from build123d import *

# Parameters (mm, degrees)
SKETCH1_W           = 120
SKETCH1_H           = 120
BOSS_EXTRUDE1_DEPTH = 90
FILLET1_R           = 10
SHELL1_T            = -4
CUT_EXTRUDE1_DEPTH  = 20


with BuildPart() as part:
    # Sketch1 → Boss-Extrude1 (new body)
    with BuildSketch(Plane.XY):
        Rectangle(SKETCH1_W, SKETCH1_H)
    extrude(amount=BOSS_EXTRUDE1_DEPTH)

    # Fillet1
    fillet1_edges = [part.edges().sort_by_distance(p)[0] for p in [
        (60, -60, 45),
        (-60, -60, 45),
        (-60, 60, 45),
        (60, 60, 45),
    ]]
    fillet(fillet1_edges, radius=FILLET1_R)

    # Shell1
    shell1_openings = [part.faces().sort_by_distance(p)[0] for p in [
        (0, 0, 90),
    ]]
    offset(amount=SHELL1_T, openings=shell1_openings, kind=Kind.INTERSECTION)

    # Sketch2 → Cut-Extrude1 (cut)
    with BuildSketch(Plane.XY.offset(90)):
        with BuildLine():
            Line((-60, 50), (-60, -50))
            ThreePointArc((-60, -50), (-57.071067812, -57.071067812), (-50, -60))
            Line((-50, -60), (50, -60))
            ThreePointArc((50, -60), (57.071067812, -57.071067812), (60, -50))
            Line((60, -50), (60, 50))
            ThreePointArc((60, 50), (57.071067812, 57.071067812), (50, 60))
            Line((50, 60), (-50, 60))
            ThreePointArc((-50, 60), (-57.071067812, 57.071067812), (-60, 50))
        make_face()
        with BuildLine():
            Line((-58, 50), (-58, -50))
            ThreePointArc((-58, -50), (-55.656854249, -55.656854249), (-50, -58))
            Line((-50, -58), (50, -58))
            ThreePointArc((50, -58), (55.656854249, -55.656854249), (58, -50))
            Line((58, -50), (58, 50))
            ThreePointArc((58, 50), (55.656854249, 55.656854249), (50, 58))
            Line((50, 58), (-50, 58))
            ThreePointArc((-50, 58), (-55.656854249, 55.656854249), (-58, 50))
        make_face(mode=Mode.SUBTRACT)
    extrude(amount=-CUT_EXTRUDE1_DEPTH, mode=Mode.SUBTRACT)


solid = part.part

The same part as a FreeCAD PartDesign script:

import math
import FreeCAD as App
import Part
import Sketcher
from FreeCAD import Vector
Q = App.Units.Quantity


def edges_at(feature, points):
    """Names of the edges that pass closest to the given points."""
    edges = feature.Shape.Edges
    near = lambda p: min(range(len(edges)), key=lambda i: edges[i].distToShape(Part.Vertex(*p))[0])
    return sorted({f"Edge{near(p) + 1}" for p in points})


def faces_at(feature, points):
    """Names of the faces that lie closest to the given points."""
    faces = feature.Shape.Faces
    near = lambda p: min(range(len(faces)), key=lambda i: faces[i].distToShape(Part.Vertex(*p))[0])
    return sorted({f"Face{near(p) + 1}" for p in points})


def add_polygon(sketch, points):
    """Adds a closed chain of lines whose ends are joined by coincident constraints."""
    first, n = sketch.GeometryCount, len(points)
    for a, b in zip(points, points[1:] + points[:1]):
        sketch.addGeometry(Part.LineSegment(App.Vector(*a, 0), App.Vector(*b, 0)), False)
    for i in range(n):
        sketch.addConstraint(Sketcher.Constraint("Coincident", first + i, 2, first + (i + 1) % n, 1))

doc = App.newDocument("Part")
body = doc.addObject("PartDesign::Body", "Body")

# Sketch on XY plane
sketch1 = doc.addObject("Sketcher::SketchObject", "Sketch")
body.addObject(sketch1)
sketch1.AttachmentSupport = (doc.XY_Plane, [""])
sketch1.MapMode = "FlatFace"
add_polygon(sketch1, [(-60, 60), (-60, -60), (60, -60), (60, 60)])  # lines 0-3
sketch1.addConstraint([
    Sketcher.Constraint("Vertical", 0),
    Sketcher.Constraint("Horizontal", 1),
    Sketcher.Constraint("Vertical", 2),
    Sketcher.Constraint("Horizontal", 3),
    Sketcher.Constraint("Symmetric", 0, 2, 2, 2, -1, 1),
    Sketcher.Constraint("Equal", 3, 0),
    Sketcher.Constraint("DistanceX", 1, 1, 1, 2, Q("120 mm")),
])
pad1 = doc.addObject("PartDesign::Pad", "Pad")
body.addObject(pad1)
pad1.Profile = sketch1
pad1.Length = 90
doc.recompute()

fillet = doc.addObject("PartDesign::Fillet", "Fillet")
body.addObject(fillet)
fillet.Base = (pad1, edges_at(pad1, [
    (60, -60, 45),
    (-60, -60, 45),
    (-60, 60, 45),
    (60, 60, 45),
]))
fillet.Radius = 10
doc.recompute()

thickness = doc.addObject("PartDesign::Thickness", "Thickness")
body.addObject(thickness)
thickness.Base = (fillet, faces_at(fillet, [(0, 0, 90)]))
thickness.Value = 4
thickness.Reversed = True
thickness.Join = "Intersection"

# Sketch on XY plane
sketch2 = doc.addObject("Sketcher::SketchObject", "Sketch001")
body.addObject(sketch2)
sketch2.AttachmentSupport = (doc.XY_Plane, [""])
sketch2.MapMode = "FlatFace"
sketch2.AttachmentOffset = App.Placement(Vector(0, 0, 90), App.Rotation())
sketch2.addGeometry([
    Part.LineSegment(Vector(-60, 50, 0), Vector(-60, -50, 0)),  # 0
    Part.ArcOfCircle(Part.Circle(Vector(-50, -50, 0), Vector(0, 0, 1), 10), math.radians(180), math.radians(270)),  # 1
    Part.LineSegment(Vector(-50, -60, 0), Vector(50, -60, 0)),  # 2
    Part.ArcOfCircle(Part.Circle(Vector(50, -50, 0), Vector(0, 0, 1), 10), math.radians(-90), math.radians(0)),  # 3
    Part.LineSegment(Vector(60, -50, 0), Vector(60, 50, 0)),  # 4
    Part.ArcOfCircle(Part.Circle(Vector(50, 50, 0), Vector(0, 0, 1), 10), math.radians(0), math.radians(90)),  # 5
    Part.LineSegment(Vector(50, 60, 0), Vector(-50, 60, 0)),  # 6
    Part.ArcOfCircle(Part.Circle(Vector(-50, 50, 0), Vector(0, 0, 1), 10), math.radians(90), math.radians(180)),  # 7
    Part.LineSegment(Vector(-58, -50, 0), Vector(-58, 50, 0)),  # 8
    Part.ArcOfCircle(Part.Circle(Vector(-50, 50, 0), Vector(0, 0, 1), 8), math.radians(90), math.radians(180)),  # 9
    Part.LineSegment(Vector(-50, 58, 0), Vector(50, 58, 0)),  # 10
    Part.ArcOfCircle(Part.Circle(Vector(50, 50, 0), Vector(0, 0, 1), 8), math.radians(0), math.radians(90)),  # 11
    Part.LineSegment(Vector(58, 50, 0), Vector(58, -50, 0)),  # 12
    Part.ArcOfCircle(Part.Circle(Vector(50, -50, 0), Vector(0, 0, 1), 8), math.radians(-90), math.radians(0)),  # 13
    Part.LineSegment(Vector(50, -58, 0), Vector(-50, -58, 0)),  # 14
    Part.ArcOfCircle(Part.Circle(Vector(-50, -50, 0), Vector(0, 0, 1), 8), math.radians(-180), math.radians(-90)),  # 15
], False)
sketch2.addConstraint([
    Sketcher.Constraint("Tangent", 0, 2, 1, 1),
    Sketcher.Constraint("Tangent", 1, 2, 2, 1),
    Sketcher.Constraint("Tangent", 2, 2, 3, 1),
    Sketcher.Constraint("Tangent", 3, 2, 4, 1),
    Sketcher.Constraint("Tangent", 4, 2, 5, 1),
    Sketcher.Constraint("Tangent", 5, 2, 6, 1),
    Sketcher.Constraint("Tangent", 6, 2, 7, 1),
    Sketcher.Constraint("Tangent", 7, 2, 0, 1),
    Sketcher.Constraint("Tangent", 8, 2, 9, 2),
    Sketcher.Constraint("Tangent", 9, 1, 10, 1),
    Sketcher.Constraint("Tangent", 10, 2, 11, 2),
    Sketcher.Constraint("Tangent", 11, 1, 12, 1),
    Sketcher.Constraint("Tangent", 12, 2, 13, 2),
    Sketcher.Constraint("Tangent", 13, 1, 14, 1),
    Sketcher.Constraint("Tangent", 14, 2, 15, 2),
    Sketcher.Constraint("Tangent", 15, 1, 8, 1),
    Sketcher.Constraint("Vertical", 0),
    Sketcher.Constraint("Horizontal", 2),
    Sketcher.Constraint("Vertical", 4),
    Sketcher.Constraint("Horizontal", 6),
    Sketcher.Constraint("Vertical", 8),
    Sketcher.Constraint("Horizontal", 10),
    Sketcher.Constraint("Vertical", 12),
    Sketcher.Constraint("Horizontal", 14),
    Sketcher.Constraint("Coincident", 9, 3, 7, 3),
    Sketcher.Constraint("Coincident", 11, 3, 5, 3),
    Sketcher.Constraint("Coincident", 13, 3, 3, 3),
    Sketcher.Constraint("Equal", 1, 3),
    Sketcher.Constraint("Equal", 3, 5),
    Sketcher.Constraint("Equal", 5, 7),
    Sketcher.Constraint("Equal", 13, 15),
    Sketcher.Constraint("Symmetric", 1, 3, 5, 3, -1, 1),
    Sketcher.Constraint("Equal", 14, 0),
    Sketcher.Constraint("Radius", 1, Q("10 mm")),
    Sketcher.Constraint("Radius", 9, Q("8 mm")),
    Sketcher.Constraint("DistanceX", 2, 1, 2, 2, Q("100 mm")),
])
pocket1 = doc.addObject("PartDesign::Pocket", "Pocket")
body.addObject(pocket1)
pocket1.Profile = sketch2
pocket1.Length = 20

doc.recompute()
